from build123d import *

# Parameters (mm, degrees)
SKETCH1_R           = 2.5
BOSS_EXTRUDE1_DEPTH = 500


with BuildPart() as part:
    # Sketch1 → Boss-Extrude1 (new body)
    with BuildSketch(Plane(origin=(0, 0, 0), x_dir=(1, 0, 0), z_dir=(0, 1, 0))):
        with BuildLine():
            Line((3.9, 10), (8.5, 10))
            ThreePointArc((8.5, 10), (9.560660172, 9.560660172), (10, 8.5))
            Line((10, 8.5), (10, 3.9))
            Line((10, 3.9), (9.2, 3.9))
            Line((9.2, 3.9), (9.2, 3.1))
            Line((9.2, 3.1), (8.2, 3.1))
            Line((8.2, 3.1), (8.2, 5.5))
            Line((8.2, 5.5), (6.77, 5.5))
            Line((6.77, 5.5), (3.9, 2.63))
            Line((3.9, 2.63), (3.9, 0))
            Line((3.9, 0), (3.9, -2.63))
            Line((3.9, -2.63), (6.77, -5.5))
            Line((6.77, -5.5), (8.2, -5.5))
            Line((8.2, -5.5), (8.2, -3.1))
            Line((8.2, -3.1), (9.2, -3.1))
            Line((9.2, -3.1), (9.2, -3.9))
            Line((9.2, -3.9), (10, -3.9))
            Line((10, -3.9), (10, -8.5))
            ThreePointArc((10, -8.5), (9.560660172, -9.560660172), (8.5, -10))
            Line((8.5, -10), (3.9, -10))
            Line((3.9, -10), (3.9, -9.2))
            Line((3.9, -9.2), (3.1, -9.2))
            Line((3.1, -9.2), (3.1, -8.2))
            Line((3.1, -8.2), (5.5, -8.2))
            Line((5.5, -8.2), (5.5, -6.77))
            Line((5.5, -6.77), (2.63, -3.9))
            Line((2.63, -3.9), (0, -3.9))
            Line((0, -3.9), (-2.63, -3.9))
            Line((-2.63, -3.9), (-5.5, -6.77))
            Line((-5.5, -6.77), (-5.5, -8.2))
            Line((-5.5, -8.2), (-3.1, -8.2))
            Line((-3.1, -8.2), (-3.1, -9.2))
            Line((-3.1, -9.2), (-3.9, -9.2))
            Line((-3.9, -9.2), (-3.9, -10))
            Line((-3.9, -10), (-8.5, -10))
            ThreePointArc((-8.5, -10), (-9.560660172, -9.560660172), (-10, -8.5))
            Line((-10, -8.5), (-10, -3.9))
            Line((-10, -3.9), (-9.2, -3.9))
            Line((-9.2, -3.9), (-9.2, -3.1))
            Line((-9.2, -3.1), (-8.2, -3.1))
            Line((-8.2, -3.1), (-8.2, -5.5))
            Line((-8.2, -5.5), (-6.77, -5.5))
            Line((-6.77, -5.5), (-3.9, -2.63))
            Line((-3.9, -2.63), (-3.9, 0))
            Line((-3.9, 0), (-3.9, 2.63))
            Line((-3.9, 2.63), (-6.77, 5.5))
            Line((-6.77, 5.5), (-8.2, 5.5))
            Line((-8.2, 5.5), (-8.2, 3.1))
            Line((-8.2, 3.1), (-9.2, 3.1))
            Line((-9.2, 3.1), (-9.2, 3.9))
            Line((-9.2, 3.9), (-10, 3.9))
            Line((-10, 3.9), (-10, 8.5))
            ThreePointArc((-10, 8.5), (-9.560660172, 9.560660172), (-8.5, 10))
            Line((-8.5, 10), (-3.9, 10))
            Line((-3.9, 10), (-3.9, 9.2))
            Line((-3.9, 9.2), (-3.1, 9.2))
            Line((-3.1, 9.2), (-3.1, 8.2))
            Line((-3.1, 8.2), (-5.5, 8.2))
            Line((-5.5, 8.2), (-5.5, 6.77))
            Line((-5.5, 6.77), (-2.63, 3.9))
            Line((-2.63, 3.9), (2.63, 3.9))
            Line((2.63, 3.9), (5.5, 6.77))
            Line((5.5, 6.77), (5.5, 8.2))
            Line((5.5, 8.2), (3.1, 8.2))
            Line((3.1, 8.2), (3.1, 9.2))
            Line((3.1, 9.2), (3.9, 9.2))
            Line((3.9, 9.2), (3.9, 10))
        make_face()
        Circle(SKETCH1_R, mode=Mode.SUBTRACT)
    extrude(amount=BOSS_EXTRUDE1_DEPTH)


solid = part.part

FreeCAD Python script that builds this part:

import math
import FreeCAD as App
import Part
import Sketcher

V = App.Vector
Q = App.Units.Quantity

doc = App.newDocument("Part")
body = doc.addObject("PartDesign::Body", "Body")

# Sketch on XZ plane
sketch1 = body.newObject("Sketcher::SketchObject", "Sketch")
sketch1.AttachmentSupport = (doc.getObject("XZ_Plane"), [""])
sketch1.MapMode = "FlatFace"
sketch1.addGeometry([
    Part.LineSegment(V(8.5, -10, 0), V(3.9, -10, 0)),  # 0
    Part.LineSegment(V(3.9, -10, 0), V(3.9, -9.2, 0)),  # 1
    Part.LineSegment(V(3.9, -9.2, 0), V(3.1, -9.2, 0)),  # 2
    Part.LineSegment(V(3.1, -9.2, 0), V(3.1, -8.2, 0)),  # 3
    Part.LineSegment(V(3.1, -8.2, 0), V(5.5, -8.2, 0)),  # 4
    Part.LineSegment(V(5.5, -8.2, 0), V(5.5, -6.8, 0)),  # 5
    Part.LineSegment(V(5.5, -6.8, 0), V(2.6, -3.9, 0)),  # 6
    Part.LineSegment(V(2.6, -3.9, 0), V(-2.6, -3.9, 0)),  # 7
    Part.LineSegment(V(-2.6, -3.9, 0), V(-5.5, -6.8, 0)),  # 8
    Part.LineSegment(V(-5.5, -6.8, 0), V(-5.5, -8.2, 0)),  # 9
    Part.LineSegment(V(-5.5, -8.2, 0), V(-3.1, -8.2, 0)),  # 10
    Part.LineSegment(V(-3.1, -8.2, 0), V(-3.1, -9.2, 0)),  # 11
    Part.LineSegment(V(-3.1, -9.2, 0), V(-3.9, -9.2, 0)),  # 12
    Part.LineSegment(V(-3.9, -9.2, 0), V(-3.9, -10, 0)),  # 13
    Part.LineSegment(V(-3.9, -10, 0), V(-8.5, -10, 0)),  # 14
    Part.ArcOfCircle(Part.Circle(V(-8.5, -8.5, 0), V(0, 0, 1), 1.5), math.radians(180), math.radians(270)),  # 15
    Part.LineSegment(V(-10, -8.5, 0), V(-10, -3.9, 0)),  # 16
    Part.LineSegment(V(-10, -3.9, 0), V(-9.2, -3.9, 0)),  # 17
    Part.LineSegment(V(-9.2, -3.9, 0), V(-9.2, -3.1, 0)),  # 18
    Part.LineSegment(V(-9.2, -3.1, 0), V(-8.2, -3.1, 0)),  # 19
    Part.LineSegment(V(-8.2, -3.1, 0), V(-8.2, -5.5, 0)),  # 20
    Part.LineSegment(V(-8.2, -5.5, 0), V(-6.8, -5.5, 0)),  # 21
    Part.LineSegment(V(-6.8, -5.5, 0), V(-3.9, -2.6, 0)),  # 22
    Part.LineSegment(V(-3.9, -2.6, 0), V(-3.9, 2.6, 0)),  # 23
    Part.LineSegment(V(-3.9, 2.6, 0), V(-6.8, 5.5, 0)),  # 24
    Part.LineSegment(V(-6.8, 5.5, 0), V(-8.2, 5.5, 0)),  # 25
    Part.LineSegment(V(-8.2, 5.5, 0), V(-8.2, 3.1, 0)),  # 26
    Part.LineSegment(V(-8.2, 3.1, 0), V(-9.2, 3.1, 0)),  # 27
    Part.LineSegment(V(-9.2, 3.1, 0), V(-9.2, 3.9, 0)),  # 28
    Part.LineSegment(V(-9.2, 3.9, 0), V(-10, 3.9, 0)),  # 29
    Part.LineSegment(V(-10, 3.9, 0), V(-10, 8.5, 0)),  # 30
    Part.ArcOfCircle(Part.Circle(V(-8.5, 8.5, 0), V(0, 0, 1), 1.5), math.radians(90), math.radians(180)),  # 31
    Part.LineSegment(V(-8.5, 10, 0), V(-3.9, 10, 0)),  # 32
    Part.LineSegment(V(-3.9, 10, 0), V(-3.9, 9.2, 0)),  # 33
    Part.LineSegment(V(-3.9, 9.2, 0), V(-3.1, 9.2, 0)),  # 34
    Part.LineSegment(V(-3.1, 9.2, 0), V(-3.1, 8.2, 0)),  # 35
    Part.LineSegment(V(-3.1, 8.2, 0), V(-5.5, 8.2, 0)),  # 36
    Part.LineSegment(V(-5.5, 8.2, 0), V(-5.5, 6.8, 0)),  # 37
    Part.LineSegment(V(-5.5, 6.8, 0), V(-2.6, 3.9, 0)),  # 38
    Part.LineSegment(V(-2.6, 3.9, 0), V(2.6, 3.9, 0)),  # 39
    Part.LineSegment(V(2.6, 3.9, 0), V(5.5, 6.8, 0)),  # 40
    Part.LineSegment(V(5.5, 6.8, 0), V(5.5, 8.2, 0)),  # 41
    Part.LineSegment(V(5.5, 8.2, 0), V(3.1, 8.2, 0)),  # 42
    Part.LineSegment(V(3.1, 8.2, 0), V(3.1, 9.2, 0)),  # 43
    Part.LineSegment(V(3.1, 9.2, 0), V(3.9, 9.2, 0)),  # 44
    Part.LineSegment(V(3.9, 9.2, 0), V(3.9, 10, 0)),  # 45
    Part.LineSegment(V(3.9, 10, 0), V(8.5, 10, 0)),  # 46
    Part.ArcOfCircle(Part.Circle(V(8.5, 8.5, 0), V(0, 0, 1), 1.5), math.radians(0), math.radians(90)),  # 47
    Part.LineSegment(V(10, 8.5, 0), V(10, 3.9, 0)),  # 48
    Part.LineSegment(V(10, 3.9, 0), V(9.2, 3.9, 0)),  # 49
    Part.LineSegment(V(9.2, 3.9, 0), V(9.2, 3.1, 0)),  # 50
    Part.LineSegment(V(9.2, 3.1, 0), V(8.2, 3.1, 0)),  # 51
    Part.LineSegment(V(8.2, 3.1, 0), V(8.2, 5.5, 0)),  # 52
    Part.LineSegment(V(8.2, 5.5, 0), V(6.8, 5.5, 0)),  # 53
    Part.LineSegment(V(6.8, 5.5, 0), V(3.9, 2.6, 0)),  # 54
    Part.LineSegment(V(3.9, 2.6, 0), V(3.9, -2.6, 0)),  # 55
    Part.LineSegment(V(3.9, -2.6, 0), V(6.8, -5.5, 0)),  # 56
    Part.LineSegment(V(6.8, -5.5, 0), V(8.2, -5.5, 0)),  # 57
    Part.LineSegment(V(8.2, -5.5, 0), V(8.2, -3.1, 0)),  # 58
    Part.LineSegment(V(8.2, -3.1, 0), V(9.2, -3.1, 0)),  # 59
    Part.LineSegment(V(9.2, -3.1, 0), V(9.2, -3.9, 0)),  # 60
    Part.LineSegment(V(9.2, -3.9, 0), V(10, -3.9, 0)),  # 61
    Part.LineSegment(V(10, -3.9, 0), V(10, -8.5, 0)),  # 62
    Part.ArcOfCircle(Part.Circle(V(8.5, -8.5, 0), V(0, 0, 1), 1.5), math.radians(-90), math.radians(0)),  # 63
    Part.Circle(V(0, 0, 0), V(0, 0, 1), 2.5),  # 64
], False)
sketch1.addConstraint([
    Sketcher.Constraint("Coincident", 0, 2, 1, 1),
    Sketcher.Constraint("Coincident", 1, 2, 2, 1),
    Sketcher.Constraint("Coincident", 2, 2, 3, 1),
    Sketcher.Constraint("Coincident", 3, 2, 4, 1),
    Sketcher.Constraint("Coincident", 4, 2, 5, 1),
    Sketcher.Constraint("Coincident", 5, 2, 6, 1),
    Sketcher.Constraint("Coincident", 6, 2, 7, 1),
    Sketcher.Constraint("Coincident", 7, 2, 8, 1),
    Sketcher.Constraint("Coincident", 8, 2, 9, 1),
    Sketcher.Constraint("Coincident", 9, 2, 10, 1),
    Sketcher.Constraint("Coincident", 10, 2, 11, 1),
    Sketcher.Constraint("Coincident", 11, 2, 12, 1),
    Sketcher.Constraint("Coincident", 12, 2, 13, 1),
    Sketcher.Constraint("Coincident", 13, 2, 14, 1),
    Sketcher.Constraint("Tangent", 14, 2, 15, 2),
    Sketcher.Constraint("Tangent", 15, 1, 16, 1),
    Sketcher.Constraint("Coincident", 16, 2, 17, 1),
    Sketcher.Constraint("Coincident", 17, 2, 18, 1),
    Sketcher.Constraint("Coincident", 18, 2, 19, 1),
    Sketcher.Constraint("Coincident", 19, 2, 20, 1),
    Sketcher.Constraint("Coincident", 20, 2, 21, 1),
    Sketcher.Constraint("Coincident", 21, 2, 22, 1),
    Sketcher.Constraint("Coincident", 22, 2, 23, 1),
    Sketcher.Constraint("Coincident", 23, 2, 24, 1),
    Sketcher.Constraint("Coincident", 24, 2, 25, 1),
    Sketcher.Constraint("Coincident", 25, 2, 26, 1),
    Sketcher.Constraint("Coincident", 26, 2, 27, 1),
    Sketcher.Constraint("Coincident", 27, 2, 28, 1),
    Sketcher.Constraint("Coincident", 28, 2, 29, 1),
    Sketcher.Constraint("Coincident", 29, 2, 30, 1),
    Sketcher.Constraint("Tangent", 30, 2, 31, 2),
    Sketcher.Constraint("Tangent", 31, 1, 32, 1),
    Sketcher.Constraint("Coincident", 32, 2, 33, 1),
    Sketcher.Constraint("Coincident", 33, 2, 34, 1),
    Sketcher.Constraint("Coincident", 34, 2, 35, 1),
    Sketcher.Constraint("Coincident", 35, 2, 36, 1),
    Sketcher.Constraint("Coincident", 36, 2, 37, 1),
    Sketcher.Constraint("Coincident", 37, 2, 38, 1),
    Sketcher.Constraint("Coincident", 38, 2, 39, 1),
    Sketcher.Constraint("Coincident", 39, 2, 40, 1),
    Sketcher.Constraint("Coincident", 40, 2, 41, 1),
    Sketcher.Constraint("Coincident", 41, 2, 42, 1),
    Sketcher.Constraint("Coincident", 42, 2, 43, 1),
    Sketcher.Constraint("Coincident", 43, 2, 44, 1),
    Sketcher.Constraint("Coincident", 44, 2, 45, 1),
    Sketcher.Constraint("Coincident", 45, 2, 46, 1),
    Sketcher.Constraint("Tangent", 46, 2, 47, 2),
    Sketcher.Constraint("Tangent", 47, 1, 48, 1),
    Sketcher.Constraint("Coincident", 48, 2, 49, 1),
    Sketcher.Constraint("Coincident", 49, 2, 50, 1),
    Sketcher.Constraint("Coincident", 50, 2, 51, 1),
    Sketcher.Constraint("Coincident", 51, 2, 52, 1),
    Sketcher.Constraint("Coincident", 52, 2, 53, 1),
    Sketcher.Constraint("Coincident", 53, 2, 54, 1),
    Sketcher.Constraint("Coincident", 54, 2, 55, 1),
    Sketcher.Constraint("Coincident", 55, 2, 56, 1),
    Sketcher.Constraint("Coincident", 56, 2, 57, 1),
    Sketcher.Constraint("Coincident", 57, 2, 58, 1),
    Sketcher.Constraint("Coincident", 58, 2, 59, 1),
    Sketcher.Constraint("Coincident", 59, 2, 60, 1),
    Sketcher.Constraint("Coincident", 60, 2, 61, 1),
    Sketcher.Constraint("Coincident", 61, 2, 62, 1),
    Sketcher.Constraint("Tangent", 62, 2, 63, 2),
    Sketcher.Constraint("Tangent", 63, 1, 0, 1),
    Sketcher.Constraint("Horizontal", 0),
    Sketcher.Constraint("Vertical", 1),
    Sketcher.Constraint("Horizontal", 2),
    Sketcher.Constraint("Vertical", 3),
    Sketcher.Constraint("Horizontal", 4),
    Sketcher.Constraint("Vertical", 5),
    Sketcher.Constraint("Horizontal", 7),
    Sketcher.Constraint("Vertical", 9),
    Sketcher.Constraint("Horizontal", 10),
    Sketcher.Constraint("Vertical", 11),
    Sketcher.Constraint("Horizontal", 12),
    Sketcher.Constraint("Vertical", 13),
    Sketcher.Constraint("Horizontal", 14),
    Sketcher.Constraint("Vertical", 16),
    Sketcher.Constraint("Horizontal", 17),
    Sketcher.Constraint("Vertical", 18),
    Sketcher.Constraint("Horizontal", 19),
    Sketcher.Constraint("Vertical", 20),
    Sketcher.Constraint("Horizontal", 21),
    Sketcher.Constraint("Vertical", 23),
    Sketcher.Constraint("Horizontal", 25),
    Sketcher.Constraint("Vertical", 26),
    Sketcher.Constraint("Horizontal", 27),
    Sketcher.Constraint("Vertical", 28),
    Sketcher.Constraint("Horizontal", 29),
    Sketcher.Constraint("Vertical", 30),
    Sketcher.Constraint("Horizontal", 32),
    Sketcher.Constraint("Vertical", 33),
    Sketcher.Constraint("Horizontal", 34),
    Sketcher.Constraint("Vertical", 35),
    Sketcher.Constraint("Horizontal", 36),
    Sketcher.Constraint("Vertical", 37),
    Sketcher.Constraint("Horizontal", 39),
    Sketcher.Constraint("Vertical", 41),
    Sketcher.Constraint("Horizontal", 42),
    Sketcher.Constraint("Vertical", 43),
    Sketcher.Constraint("Horizontal", 44),
    Sketcher.Constraint("Vertical", 45),
    Sketcher.Constraint("Horizontal", 46),
    Sketcher.Constraint("Vertical", 48),
    Sketcher.Constraint("Horizontal", 49),
    Sketcher.Constraint("Vertical", 50),
    Sketcher.Constraint("Horizontal", 51),
    Sketcher.Constraint("Vertical", 52),
    Sketcher.Constraint("Horizontal", 53),
    Sketcher.Constraint("Vertical", 55),
    Sketcher.Constraint("Horizontal", 57),
    Sketcher.Constraint("Vertical", 58),
    Sketcher.Constraint("Horizontal", 59),
    Sketcher.Constraint("Vertical", 60),
    Sketcher.Constraint("Horizontal", 61),
    Sketcher.Constraint("Vertical", 62),
    Sketcher.Constraint("Coincident", 64, 3, -1, 1),
    Sketcher.Constraint("Equal", 15, 31),
    Sketcher.Constraint("Equal", 31, 47),
    Sketcher.Constraint("Equal", 47, 63),
    Sketcher.Constraint("Symmetric", 15, 3, 47, 3, -1, 1),
    Sketcher.Constraint("Symmetric", 31, 3, 63, 3, -1, 1),
    Sketcher.Constraint("Symmetric", 1, 2, 33, 2, -1, 1),
    Sketcher.Constraint("Symmetric", 3, 2, 35, 2, -1, 1),
    Sketcher.Constraint("Symmetric", 5, 2, 37, 2, -1, 1),
    Sketcher.Constraint("Symmetric", 6, 2, 38, 2, -1, 1),
    Sketcher.Constraint("Symmetric", 8, 2, 40, 2, -1, 1),
    Sketcher.Constraint("Symmetric", 10, 2, 42, 2, -1, 1),
    Sketcher.Constraint("Symmetric", 12, 2, 44, 2, -1, 1),
    Sketcher.Constraint("Symmetric", 17, 2, 49, 2, -1, 1),
    Sketcher.Constraint("Symmetric", 19, 2, 51, 2, -1, 1),
    Sketcher.Constraint("Symmetric", 21, 2, 53, 2, -1, 1),
    Sketcher.Constraint("Symmetric", 22, 2, 54, 2, -1, 1),
    Sketcher.Constraint("Symmetric", 24, 2, 56, 2, -1, 1),
    Sketcher.Constraint("Symmetric", 26, 2, 58, 2, -1, 1),
    Sketcher.Constraint("Symmetric", 28, 2, 60, 2, -1, 1),
    Sketcher.Constraint("Symmetric", 31, 3, 47, 3, -2),
    Sketcher.Constraint("Symmetric", 5, 2, 8, 2, -2),
    Sketcher.Constraint("Symmetric", 3, 2, 10, 2, -2),
    Sketcher.Constraint("Symmetric", 1, 2, 12, 2, -2),
    Sketcher.Constraint("Symmetric", 28, 2, 49, 2, -2),
    Sketcher.Constraint("Symmetric", 26, 2, 51, 2, -2),
    Sketcher.Constraint("Symmetric", 24, 2, 53, 2, -2),
    Sketcher.Constraint("Perpendicular", 6, 8),
    Sketcher.Constraint("Parallel", 8, 22),
    Sketcher.Constraint("Perpendicular", 22, 24),
    Sketcher.Constraint("Perpendicular", 38, 40),
    Sketcher.Constraint("Perpendicular", 54, 56),
    Sketcher.Constraint("Horizontal", 7, 2, 16, 2),
    Sketcher.Constraint("Horizontal", 23, 2, 54, 2),
    Sketcher.Constraint("Vertical", 13, 2, 22, 2),
    Sketcher.Constraint("Equal", 12, 17),
    Sketcher.Constraint("Equal", 61, 1),
    Sketcher.Constraint("Equal", 59, 3),
    Sketcher.Constraint("Equal", 57, 5),
    Sketcher.Constraint("Equal", 46, 16),
    Sketcher.Constraint("Equal", 13, 18),
    Sketcher.Constraint("Equal", 42, 20),
    Sketcher.Constraint("Equal", 39, 23),
    Sketcher.Constraint("Diameter", 64, Q("5 mm")),
    Sketcher.Constraint("Radius", 15, Q("1.5 mm")),
    Sketcher.Constraint("DistanceX", 19, 1, 19, 2, Q("1 mm")),
    Sketcher.Constraint("DistanceX", 0, 2, 0, 1, Q("4.6 mm")),
    Sketcher.Constraint("DistanceX", 2, 2, 2, 1, Q("0.8 mm")),
    Sketcher.Constraint("DistanceX", 4, 1, 4, 2, Q("2.4 mm")),
    Sketcher.Constraint("DistanceY", 0, 2, -1, 1, Q("10 mm")),
    Sketcher.Constraint("DistanceX", 7, 2, 7, 1, Q("5.26 mm")),
])
pad1 = body.newObject("PartDesign::Pad", "Pad")
pad1.Profile = sketch1
pad1.Length = 500
pad1.Reversed = True

doc.recompute()
